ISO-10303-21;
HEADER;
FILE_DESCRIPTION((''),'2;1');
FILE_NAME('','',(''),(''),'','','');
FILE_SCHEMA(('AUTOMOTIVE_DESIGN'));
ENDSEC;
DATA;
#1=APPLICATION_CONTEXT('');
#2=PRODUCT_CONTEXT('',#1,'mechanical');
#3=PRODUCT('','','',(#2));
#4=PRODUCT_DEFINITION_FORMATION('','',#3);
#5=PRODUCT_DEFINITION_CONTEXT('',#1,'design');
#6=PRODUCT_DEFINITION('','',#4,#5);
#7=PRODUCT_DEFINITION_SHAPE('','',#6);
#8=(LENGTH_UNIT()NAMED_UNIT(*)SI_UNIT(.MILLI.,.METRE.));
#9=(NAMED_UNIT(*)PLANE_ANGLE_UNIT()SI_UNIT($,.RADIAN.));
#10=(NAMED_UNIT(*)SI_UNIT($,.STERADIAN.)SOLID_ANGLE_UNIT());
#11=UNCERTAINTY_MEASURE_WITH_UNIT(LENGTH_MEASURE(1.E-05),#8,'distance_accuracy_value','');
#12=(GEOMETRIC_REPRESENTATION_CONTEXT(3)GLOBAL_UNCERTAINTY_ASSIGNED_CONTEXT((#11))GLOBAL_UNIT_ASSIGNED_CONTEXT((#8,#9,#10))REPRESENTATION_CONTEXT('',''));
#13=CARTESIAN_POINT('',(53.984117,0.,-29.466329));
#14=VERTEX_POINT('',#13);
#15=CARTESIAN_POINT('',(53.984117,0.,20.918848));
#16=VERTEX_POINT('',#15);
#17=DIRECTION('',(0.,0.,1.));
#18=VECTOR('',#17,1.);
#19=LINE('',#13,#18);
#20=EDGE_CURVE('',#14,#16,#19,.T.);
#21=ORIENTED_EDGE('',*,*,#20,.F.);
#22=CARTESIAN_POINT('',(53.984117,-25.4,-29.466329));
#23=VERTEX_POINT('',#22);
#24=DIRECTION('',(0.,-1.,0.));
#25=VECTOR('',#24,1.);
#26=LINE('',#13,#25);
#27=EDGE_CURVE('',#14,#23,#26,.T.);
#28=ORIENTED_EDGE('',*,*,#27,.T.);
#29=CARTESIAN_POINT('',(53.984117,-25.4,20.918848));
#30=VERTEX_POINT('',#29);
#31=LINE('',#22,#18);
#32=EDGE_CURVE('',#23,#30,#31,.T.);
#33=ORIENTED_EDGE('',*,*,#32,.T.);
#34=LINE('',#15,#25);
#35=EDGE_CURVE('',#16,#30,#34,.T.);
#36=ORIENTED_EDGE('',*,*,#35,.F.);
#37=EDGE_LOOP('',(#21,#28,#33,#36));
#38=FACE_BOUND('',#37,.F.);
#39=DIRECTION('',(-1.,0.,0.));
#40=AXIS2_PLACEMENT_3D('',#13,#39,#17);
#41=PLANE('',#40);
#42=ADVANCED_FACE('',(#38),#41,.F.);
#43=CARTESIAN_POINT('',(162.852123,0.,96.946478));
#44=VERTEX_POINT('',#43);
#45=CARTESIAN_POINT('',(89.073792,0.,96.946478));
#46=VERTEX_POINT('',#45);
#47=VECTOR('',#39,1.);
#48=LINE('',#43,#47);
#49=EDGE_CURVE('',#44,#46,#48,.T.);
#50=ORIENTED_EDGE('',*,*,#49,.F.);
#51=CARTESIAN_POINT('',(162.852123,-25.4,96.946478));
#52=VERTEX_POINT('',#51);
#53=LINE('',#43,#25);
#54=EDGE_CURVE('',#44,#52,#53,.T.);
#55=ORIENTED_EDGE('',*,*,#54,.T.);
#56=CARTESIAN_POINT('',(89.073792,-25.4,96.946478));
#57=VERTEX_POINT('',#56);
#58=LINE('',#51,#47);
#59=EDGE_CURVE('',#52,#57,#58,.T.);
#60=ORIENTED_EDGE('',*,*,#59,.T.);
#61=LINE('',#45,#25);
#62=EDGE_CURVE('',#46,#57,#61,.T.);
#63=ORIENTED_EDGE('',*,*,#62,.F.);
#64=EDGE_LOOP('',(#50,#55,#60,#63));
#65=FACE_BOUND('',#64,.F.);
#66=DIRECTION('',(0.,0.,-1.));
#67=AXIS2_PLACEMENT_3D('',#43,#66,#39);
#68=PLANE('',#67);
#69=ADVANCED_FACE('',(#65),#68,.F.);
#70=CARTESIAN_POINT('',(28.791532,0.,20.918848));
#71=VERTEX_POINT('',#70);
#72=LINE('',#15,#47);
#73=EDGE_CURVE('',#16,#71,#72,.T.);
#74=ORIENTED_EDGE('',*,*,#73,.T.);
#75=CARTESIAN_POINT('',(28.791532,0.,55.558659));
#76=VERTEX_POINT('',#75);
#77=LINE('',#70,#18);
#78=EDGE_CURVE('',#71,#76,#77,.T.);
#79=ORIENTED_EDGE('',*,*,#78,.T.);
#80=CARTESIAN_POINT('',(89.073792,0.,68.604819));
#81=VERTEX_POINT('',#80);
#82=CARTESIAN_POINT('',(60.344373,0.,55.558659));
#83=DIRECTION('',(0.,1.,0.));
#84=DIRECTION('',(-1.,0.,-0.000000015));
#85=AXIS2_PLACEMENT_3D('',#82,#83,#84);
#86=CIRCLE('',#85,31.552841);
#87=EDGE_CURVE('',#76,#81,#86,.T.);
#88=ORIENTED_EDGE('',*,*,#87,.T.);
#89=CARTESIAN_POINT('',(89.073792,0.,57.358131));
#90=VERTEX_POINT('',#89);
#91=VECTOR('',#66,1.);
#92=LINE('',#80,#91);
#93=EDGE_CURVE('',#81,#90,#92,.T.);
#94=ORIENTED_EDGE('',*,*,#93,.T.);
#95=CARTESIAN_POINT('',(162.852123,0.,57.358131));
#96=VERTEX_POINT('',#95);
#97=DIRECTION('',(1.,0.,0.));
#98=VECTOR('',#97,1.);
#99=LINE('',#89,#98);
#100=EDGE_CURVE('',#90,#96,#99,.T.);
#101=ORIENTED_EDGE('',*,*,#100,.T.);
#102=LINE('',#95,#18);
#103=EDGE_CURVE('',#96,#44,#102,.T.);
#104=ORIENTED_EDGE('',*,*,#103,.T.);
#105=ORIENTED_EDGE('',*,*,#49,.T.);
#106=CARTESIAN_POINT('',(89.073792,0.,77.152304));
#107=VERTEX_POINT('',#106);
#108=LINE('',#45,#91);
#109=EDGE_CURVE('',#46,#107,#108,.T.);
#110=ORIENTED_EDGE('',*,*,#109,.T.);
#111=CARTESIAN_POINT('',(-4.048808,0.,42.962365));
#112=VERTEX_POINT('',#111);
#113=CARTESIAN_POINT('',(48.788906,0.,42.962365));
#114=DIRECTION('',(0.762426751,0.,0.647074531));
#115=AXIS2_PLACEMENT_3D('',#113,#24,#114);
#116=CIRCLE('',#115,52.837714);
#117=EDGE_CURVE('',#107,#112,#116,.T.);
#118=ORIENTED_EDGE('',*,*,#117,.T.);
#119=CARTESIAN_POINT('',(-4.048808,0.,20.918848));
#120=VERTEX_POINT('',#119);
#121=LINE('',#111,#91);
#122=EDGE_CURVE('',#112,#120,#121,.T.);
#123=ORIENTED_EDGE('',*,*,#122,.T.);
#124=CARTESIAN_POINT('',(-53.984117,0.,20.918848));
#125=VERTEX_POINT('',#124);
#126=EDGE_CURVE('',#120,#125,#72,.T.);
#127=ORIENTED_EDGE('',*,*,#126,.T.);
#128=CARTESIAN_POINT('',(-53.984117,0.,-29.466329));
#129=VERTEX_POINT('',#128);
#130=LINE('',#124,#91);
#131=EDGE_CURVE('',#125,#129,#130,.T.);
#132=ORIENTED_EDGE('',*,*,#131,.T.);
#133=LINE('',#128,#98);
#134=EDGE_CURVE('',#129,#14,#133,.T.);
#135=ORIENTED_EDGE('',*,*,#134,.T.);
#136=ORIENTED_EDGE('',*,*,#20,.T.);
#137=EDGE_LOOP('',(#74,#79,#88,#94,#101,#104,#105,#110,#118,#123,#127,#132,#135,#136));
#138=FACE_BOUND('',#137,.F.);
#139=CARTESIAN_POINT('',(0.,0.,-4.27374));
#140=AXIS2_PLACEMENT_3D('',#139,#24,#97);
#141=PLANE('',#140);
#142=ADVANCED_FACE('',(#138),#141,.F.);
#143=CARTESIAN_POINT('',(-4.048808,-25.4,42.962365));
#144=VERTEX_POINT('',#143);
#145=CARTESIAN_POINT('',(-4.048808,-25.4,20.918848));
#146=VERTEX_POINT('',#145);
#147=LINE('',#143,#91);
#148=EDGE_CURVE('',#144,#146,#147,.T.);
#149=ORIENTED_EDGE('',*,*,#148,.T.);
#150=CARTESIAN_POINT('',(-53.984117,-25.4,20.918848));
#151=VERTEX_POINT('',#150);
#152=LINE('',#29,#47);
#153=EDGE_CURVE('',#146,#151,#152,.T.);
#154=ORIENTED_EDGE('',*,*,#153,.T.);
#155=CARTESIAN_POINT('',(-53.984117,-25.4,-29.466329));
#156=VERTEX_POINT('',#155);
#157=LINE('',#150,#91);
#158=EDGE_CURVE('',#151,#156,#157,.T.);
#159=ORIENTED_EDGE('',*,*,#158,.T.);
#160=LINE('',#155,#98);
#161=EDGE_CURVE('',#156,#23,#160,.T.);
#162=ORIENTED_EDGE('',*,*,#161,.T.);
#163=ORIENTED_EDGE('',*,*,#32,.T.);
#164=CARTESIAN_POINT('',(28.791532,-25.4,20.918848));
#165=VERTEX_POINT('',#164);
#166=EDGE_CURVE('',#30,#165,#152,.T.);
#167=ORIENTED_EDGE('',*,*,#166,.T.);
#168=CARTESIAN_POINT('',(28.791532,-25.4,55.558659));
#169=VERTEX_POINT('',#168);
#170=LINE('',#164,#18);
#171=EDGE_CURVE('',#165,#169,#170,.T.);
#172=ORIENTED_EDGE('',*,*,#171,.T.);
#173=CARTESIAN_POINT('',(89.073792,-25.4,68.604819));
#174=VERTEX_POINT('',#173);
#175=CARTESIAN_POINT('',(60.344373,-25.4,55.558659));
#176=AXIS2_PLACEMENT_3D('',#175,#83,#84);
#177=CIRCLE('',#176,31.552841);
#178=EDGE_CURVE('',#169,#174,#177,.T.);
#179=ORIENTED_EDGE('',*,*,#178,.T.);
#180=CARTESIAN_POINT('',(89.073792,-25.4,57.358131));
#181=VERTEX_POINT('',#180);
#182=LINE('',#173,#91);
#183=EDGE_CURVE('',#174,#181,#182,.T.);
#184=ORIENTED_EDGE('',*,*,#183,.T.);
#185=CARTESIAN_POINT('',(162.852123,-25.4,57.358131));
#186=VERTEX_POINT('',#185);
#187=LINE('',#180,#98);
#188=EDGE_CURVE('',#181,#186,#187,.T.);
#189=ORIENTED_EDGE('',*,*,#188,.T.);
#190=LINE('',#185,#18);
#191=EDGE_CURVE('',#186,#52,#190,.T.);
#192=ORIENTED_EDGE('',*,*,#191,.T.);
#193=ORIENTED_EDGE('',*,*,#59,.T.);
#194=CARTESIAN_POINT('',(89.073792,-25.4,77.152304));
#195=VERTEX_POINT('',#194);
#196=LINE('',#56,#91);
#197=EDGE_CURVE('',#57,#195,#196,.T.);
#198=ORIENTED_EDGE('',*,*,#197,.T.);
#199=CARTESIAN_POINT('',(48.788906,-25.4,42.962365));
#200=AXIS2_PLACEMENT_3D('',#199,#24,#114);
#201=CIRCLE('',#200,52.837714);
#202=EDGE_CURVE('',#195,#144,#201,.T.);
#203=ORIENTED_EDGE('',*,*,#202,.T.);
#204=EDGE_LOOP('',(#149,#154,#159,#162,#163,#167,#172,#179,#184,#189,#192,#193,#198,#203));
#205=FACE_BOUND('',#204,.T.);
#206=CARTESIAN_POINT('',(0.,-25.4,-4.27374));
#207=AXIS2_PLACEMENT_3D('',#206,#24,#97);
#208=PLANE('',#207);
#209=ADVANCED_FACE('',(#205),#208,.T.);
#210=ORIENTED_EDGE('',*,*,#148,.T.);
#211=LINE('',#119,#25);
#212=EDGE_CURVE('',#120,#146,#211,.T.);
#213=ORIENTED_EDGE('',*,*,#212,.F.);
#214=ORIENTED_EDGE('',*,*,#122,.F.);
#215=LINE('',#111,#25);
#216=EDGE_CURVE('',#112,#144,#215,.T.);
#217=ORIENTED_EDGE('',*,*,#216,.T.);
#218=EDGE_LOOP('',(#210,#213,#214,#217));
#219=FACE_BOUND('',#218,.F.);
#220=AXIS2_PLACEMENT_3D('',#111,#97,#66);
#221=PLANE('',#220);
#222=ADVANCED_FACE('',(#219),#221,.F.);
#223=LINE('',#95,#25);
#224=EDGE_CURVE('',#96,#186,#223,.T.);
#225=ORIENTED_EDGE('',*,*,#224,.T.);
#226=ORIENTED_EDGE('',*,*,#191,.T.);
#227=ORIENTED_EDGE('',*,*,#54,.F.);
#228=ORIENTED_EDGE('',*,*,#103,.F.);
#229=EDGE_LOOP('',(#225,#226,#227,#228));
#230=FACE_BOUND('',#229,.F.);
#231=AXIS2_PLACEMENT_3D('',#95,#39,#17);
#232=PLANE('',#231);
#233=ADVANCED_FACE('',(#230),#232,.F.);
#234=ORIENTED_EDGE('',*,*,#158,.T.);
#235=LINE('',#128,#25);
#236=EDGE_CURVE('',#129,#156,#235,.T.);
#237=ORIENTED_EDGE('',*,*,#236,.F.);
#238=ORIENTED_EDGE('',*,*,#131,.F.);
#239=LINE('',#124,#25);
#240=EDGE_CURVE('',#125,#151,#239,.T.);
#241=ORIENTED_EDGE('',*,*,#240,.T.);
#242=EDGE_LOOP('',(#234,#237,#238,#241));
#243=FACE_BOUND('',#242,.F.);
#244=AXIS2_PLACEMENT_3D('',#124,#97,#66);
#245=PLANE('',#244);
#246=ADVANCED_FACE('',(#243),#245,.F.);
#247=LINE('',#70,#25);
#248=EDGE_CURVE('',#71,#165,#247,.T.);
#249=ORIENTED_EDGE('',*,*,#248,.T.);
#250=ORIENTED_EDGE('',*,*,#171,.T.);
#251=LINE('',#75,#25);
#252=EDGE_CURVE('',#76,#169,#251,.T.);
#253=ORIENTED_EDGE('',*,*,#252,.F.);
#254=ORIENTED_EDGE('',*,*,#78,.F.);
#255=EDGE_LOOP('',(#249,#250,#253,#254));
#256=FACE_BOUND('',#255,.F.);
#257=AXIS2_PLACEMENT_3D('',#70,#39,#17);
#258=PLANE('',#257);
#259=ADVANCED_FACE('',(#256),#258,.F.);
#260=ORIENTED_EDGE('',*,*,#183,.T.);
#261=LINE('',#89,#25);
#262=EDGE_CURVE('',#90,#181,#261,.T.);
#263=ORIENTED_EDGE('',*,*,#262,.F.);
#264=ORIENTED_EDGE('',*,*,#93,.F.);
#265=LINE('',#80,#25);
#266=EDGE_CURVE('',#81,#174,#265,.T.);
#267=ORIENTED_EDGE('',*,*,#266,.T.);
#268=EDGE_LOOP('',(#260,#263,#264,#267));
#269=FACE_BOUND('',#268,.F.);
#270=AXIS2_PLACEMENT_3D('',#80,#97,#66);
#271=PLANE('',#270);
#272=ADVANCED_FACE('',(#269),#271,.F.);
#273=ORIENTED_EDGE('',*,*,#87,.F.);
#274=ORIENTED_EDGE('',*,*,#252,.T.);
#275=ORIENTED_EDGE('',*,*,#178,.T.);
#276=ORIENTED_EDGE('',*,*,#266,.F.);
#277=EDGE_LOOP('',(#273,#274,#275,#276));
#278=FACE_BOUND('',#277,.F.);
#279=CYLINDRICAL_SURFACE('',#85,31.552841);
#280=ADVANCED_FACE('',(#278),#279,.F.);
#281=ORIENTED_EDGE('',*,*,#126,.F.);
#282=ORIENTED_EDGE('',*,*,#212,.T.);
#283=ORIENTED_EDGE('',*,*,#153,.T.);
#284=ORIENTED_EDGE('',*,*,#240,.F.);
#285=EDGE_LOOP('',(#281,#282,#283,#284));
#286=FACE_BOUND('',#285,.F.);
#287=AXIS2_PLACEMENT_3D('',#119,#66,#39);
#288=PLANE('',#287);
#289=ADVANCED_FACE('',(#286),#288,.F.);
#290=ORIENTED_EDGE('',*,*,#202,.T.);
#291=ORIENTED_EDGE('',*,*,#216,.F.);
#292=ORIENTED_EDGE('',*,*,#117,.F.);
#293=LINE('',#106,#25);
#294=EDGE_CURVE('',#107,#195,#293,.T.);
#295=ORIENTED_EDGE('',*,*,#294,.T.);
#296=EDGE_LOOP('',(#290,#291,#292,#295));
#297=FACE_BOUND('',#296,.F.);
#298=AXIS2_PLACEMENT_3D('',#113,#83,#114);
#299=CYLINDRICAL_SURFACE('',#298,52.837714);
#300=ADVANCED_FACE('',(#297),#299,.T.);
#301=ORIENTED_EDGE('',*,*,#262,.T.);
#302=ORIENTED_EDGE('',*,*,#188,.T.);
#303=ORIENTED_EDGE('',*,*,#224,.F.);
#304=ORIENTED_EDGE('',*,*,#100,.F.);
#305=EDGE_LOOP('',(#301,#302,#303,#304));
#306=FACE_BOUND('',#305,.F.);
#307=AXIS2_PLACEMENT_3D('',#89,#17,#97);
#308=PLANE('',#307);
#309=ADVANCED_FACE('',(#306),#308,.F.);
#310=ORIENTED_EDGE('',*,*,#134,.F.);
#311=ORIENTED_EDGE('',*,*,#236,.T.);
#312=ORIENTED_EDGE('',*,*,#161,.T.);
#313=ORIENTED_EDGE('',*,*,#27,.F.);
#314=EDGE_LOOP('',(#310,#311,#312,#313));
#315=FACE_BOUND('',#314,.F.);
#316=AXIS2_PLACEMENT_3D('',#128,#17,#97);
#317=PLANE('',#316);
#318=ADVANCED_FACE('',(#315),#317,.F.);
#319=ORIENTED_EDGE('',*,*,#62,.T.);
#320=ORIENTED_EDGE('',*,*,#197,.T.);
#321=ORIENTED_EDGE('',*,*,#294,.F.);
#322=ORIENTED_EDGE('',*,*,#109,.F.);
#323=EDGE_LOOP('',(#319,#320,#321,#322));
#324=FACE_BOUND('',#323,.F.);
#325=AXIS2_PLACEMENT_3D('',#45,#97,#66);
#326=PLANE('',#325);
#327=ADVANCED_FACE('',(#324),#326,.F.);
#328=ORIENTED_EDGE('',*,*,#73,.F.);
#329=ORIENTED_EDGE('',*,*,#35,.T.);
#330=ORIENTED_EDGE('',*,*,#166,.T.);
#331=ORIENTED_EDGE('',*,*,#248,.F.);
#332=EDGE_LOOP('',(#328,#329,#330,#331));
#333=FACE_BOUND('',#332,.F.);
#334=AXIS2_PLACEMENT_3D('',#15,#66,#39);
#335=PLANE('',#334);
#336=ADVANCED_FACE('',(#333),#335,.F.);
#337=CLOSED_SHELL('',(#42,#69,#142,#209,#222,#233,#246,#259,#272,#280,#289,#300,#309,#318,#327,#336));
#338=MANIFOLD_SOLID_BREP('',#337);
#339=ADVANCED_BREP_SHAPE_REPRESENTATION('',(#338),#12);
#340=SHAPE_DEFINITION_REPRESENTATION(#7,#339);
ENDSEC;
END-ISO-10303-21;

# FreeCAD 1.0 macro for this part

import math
import FreeCAD as App
import Part
import Sketcher

V = App.Vector
Q = App.Units.Quantity

doc = App.newDocument("Part")
body = doc.addObject("PartDesign::Body", "Body")

# Sketch on XZ plane
sketch1 = body.newObject("Sketcher::SketchObject", "Sketch")
sketch1.AttachmentSupport = (doc.getObject("XZ_Plane"), [""])
sketch1.MapMode = "FlatFace"
sketch1.addGeometry([
    Part.LineSegment(V(-54, 21, 0), V(-54, -29, 0)),  # 0
    Part.LineSegment(V(-54, -29, 0), V(54, -29, 0)),  # 1
    Part.LineSegment(V(54, -29, 0), V(54, 21, 0)),  # 2
    Part.LineSegment(V(54, 21, 0), V(29, 21, 0)),  # 3
    Part.LineSegment(V(29, 21, 0), V(29, 56, 0)),  # 4
    Part.ArcOfCircle(Part.Circle(V(60, 56, 0), V(0, 0, 1), 32), math.radians(24), math.radians(180)),  # 5
    Part.LineSegment(V(89, 69, 0), V(89, 57, 0)),  # 6
    Part.LineSegment(V(89, 57, 0), V(163, 57, 0)),  # 7
    Part.LineSegment(V(163, 57, 0), V(163, 97, 0)),  # 8
    Part.LineSegment(V(163, 97, 0), V(89, 97, 0)),  # 9
    Part.LineSegment(V(89, 97, 0), V(89, 77, 0)),  # 10
    Part.ArcOfCircle(Part.Circle(V(49, 43, 0), V(0, 0, 1), 53), math.radians(40), math.radians(180)),  # 11
    Part.LineSegment(V(-4, 43, 0), V(-4, 21, 0)),  # 12
    Part.LineSegment(V(-4, 21, 0), V(-54, 21, 0)),  # 13
], False)
sketch1.addConstraint([
    Sketcher.Constraint("Coincident", 0, 2, 1, 1),
    Sketcher.Constraint("Coincident", 1, 2, 2, 1),
    Sketcher.Constraint("Coincident", 2, 2, 3, 1),
    Sketcher.Constraint("Coincident", 3, 2, 4, 1),
    Sketcher.Constraint("Tangent", 4, 2, 5, 2),
    Sketcher.Constraint("Coincident", 5, 1, 6, 1),
    Sketcher.Constraint("Coincident", 6, 2, 7, 1),
    Sketcher.Constraint("Coincident", 7, 2, 8, 1),
    Sketcher.Constraint("Coincident", 8, 2, 9, 1),
    Sketcher.Constraint("Coincident", 9, 2, 10, 1),
    Sketcher.Constraint("Coincident", 10, 2, 11, 1),
    Sketcher.Constraint("Tangent", 11, 2, 12, 1),
    Sketcher.Constraint("Coincident", 12, 2, 13, 1),
    Sketcher.Constraint("Coincident", 13, 2, 0, 1),
    Sketcher.Constraint("Vertical", 0),
    Sketcher.Constraint("Horizontal", 1),
    Sketcher.Constraint("Vertical", 2),
    Sketcher.Constraint("Horizontal", 3),
    Sketcher.Constraint("Vertical", 4),
    Sketcher.Constraint("Vertical", 6),
    Sketcher.Constraint("Horizontal", 7),
    Sketcher.Constraint("Vertical", 8),
    Sketcher.Constraint("Horizontal", 9),
    Sketcher.Constraint("Vertical", 10),
    Sketcher.Constraint("Vertical", 12),
    Sketcher.Constraint("Horizontal", 13),
    Sketcher.Constraint("Symmetric", 2, 2, 13, 2, -2),
    Sketcher.Constraint("Vertical", 6, 2, 9, 2),
    Sketcher.Constraint("Radius", 5, Q("31.552841 mm")),
    Sketcher.Constraint("Radius", 11, Q("52.837714 mm")),
    Sketcher.Constraint("DistanceX", 7, 1, 7, 2, Q("73.778331 mm")),
    Sketcher.Constraint("DistanceX", 13, 2, 13, 1, Q("49.935309 mm")),
    Sketcher.Constraint("DistanceY", 4, 1, 4, 2, Q("34.639811 mm")),
    Sketcher.Constraint("DistanceY", 6, 2, 6, 1, Q("11.246688 mm")),
    Sketcher.Constraint("DistanceX", 1, 1, 1, 2, Q("107.968234 mm")),
    Sketcher.Constraint("DistanceX", 3, 2, 3, 1, Q("25.192585 mm")),
    Sketcher.Constraint("DistanceY", 0, 2, 0, 1, Q("50.385177 mm")),
    Sketcher.Constraint("DistanceY", 8, 1, 8, 2, Q("39.588347 mm")),
    Sketcher.Constraint("DistanceY", 10, 2, 10, 1, Q("19.794174 mm")),
    Sketcher.Constraint("DistanceY", 12, 2, 12, 1, Q("22.043517 mm")),
    Sketcher.Constraint("DistanceY", -1, 1, 5, 3, Q("55.558659 mm")),
])
pad1 = body.newObject("PartDesign::Pad", "Pad")
pad1.Profile = sketch1
pad1.Length = Q("1 in")

doc.recompute()
